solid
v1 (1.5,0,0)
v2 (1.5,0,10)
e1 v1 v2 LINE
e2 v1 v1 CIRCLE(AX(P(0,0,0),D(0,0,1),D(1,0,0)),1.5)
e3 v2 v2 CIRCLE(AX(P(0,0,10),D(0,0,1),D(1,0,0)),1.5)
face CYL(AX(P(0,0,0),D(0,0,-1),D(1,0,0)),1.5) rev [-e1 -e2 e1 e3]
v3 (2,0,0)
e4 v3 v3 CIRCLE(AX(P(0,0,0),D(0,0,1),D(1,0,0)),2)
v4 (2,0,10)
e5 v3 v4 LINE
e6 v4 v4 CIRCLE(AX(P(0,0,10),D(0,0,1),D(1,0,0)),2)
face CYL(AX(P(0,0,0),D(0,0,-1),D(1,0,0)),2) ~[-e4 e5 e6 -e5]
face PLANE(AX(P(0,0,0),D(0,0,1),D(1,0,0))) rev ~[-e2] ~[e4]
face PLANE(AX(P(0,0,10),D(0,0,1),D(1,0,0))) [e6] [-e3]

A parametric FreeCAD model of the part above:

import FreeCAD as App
import Part
import Sketcher

doc = App.newDocument("Part")
body = doc.addObject("PartDesign::Body", "Body")

sketch1 = doc.addObject("Sketcher::SketchObject", "Sketch")
body.addObject(sketch1)
sketch1.AttachmentSupport = (doc.XY_Plane, [""])
sketch1.MapMode = "FlatFace"
sketch1.addGeometry(Part.Circle(App.Vector(0, 0, 0), App.Vector(0, 0, 1), 2), False)
sketch1.addGeometry(Part.Circle(App.Vector(0, 0, 0), App.Vector(0, 0, 1), 1.5), False)
sketch1.addConstraint(Sketcher.Constraint("Coincident", 0, 3, -1, 1))
sketch1.addConstraint(Sketcher.Constraint("Coincident", 1, 3, -1, 1))
sketch1.addConstraint(Sketcher.Constraint("Diameter", 0, 4.0))
sketch1.addConstraint(Sketcher.Constraint("Diameter", 1, 3.0))
pad1 = doc.addObject("PartDesign::Pad", "Pad")
body.addObject(pad1)
pad1.Profile = sketch1
pad1.Length = 10

doc.recompute()
